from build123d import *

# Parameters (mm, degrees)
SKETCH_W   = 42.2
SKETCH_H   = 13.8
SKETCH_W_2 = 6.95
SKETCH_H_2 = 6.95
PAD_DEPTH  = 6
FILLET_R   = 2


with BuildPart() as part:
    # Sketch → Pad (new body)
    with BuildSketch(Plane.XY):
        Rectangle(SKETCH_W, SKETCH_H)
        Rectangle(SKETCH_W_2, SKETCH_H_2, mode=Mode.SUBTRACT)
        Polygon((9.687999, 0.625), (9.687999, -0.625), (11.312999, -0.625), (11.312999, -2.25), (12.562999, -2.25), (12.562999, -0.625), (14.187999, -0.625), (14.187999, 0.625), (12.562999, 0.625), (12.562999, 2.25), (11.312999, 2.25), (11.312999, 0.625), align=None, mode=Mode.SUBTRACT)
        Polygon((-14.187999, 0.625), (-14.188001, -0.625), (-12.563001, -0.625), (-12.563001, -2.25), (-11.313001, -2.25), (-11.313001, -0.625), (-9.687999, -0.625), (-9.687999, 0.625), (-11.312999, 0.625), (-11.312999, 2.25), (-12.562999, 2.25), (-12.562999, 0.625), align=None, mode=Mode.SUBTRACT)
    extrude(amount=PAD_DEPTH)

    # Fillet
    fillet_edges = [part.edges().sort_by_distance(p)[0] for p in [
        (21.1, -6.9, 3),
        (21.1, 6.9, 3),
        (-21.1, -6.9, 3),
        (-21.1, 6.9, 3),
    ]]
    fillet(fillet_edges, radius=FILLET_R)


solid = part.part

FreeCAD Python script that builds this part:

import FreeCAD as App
import Part
import Sketcher
Q = App.Units.Quantity


def edges_at(feature, points):
    """Names of the edges that pass closest to the given points."""
    edges = feature.Shape.Edges
    near = lambda p: min(range(len(edges)), key=lambda i: edges[i].distToShape(Part.Vertex(*p))[0])
    return sorted({f"Edge{near(p) + 1}" for p in points})


def add_polygon(sketch, points):
    """Adds a closed chain of lines whose ends are joined by coincident constraints."""
    first, n = sketch.GeometryCount, len(points)
    for a, b in zip(points, points[1:] + points[:1]):
        sketch.addGeometry(Part.LineSegment(App.Vector(*a, 0), App.Vector(*b, 0)), False)
    for i in range(n):
        sketch.addConstraint(Sketcher.Constraint("Coincident", first + i, 2, first + (i + 1) % n, 1))

doc = App.newDocument("Part")
body = doc.addObject("PartDesign::Body", "Body")

# Sketch on XY plane
sketch1 = body.newObject("Sketcher::SketchObject", "Sketch")
sketch1.AttachmentSupport = (doc.getObject("XY_Plane"), [""])
sketch1.MapMode = "FlatFace"
add_polygon(sketch1, [(-21.1, 6.9), (-21.1, -6.9), (21.1, -6.9), (21.1, 6.9)])  # lines 0-3
add_polygon(sketch1, [(-14.2, -0.6), (-14.2, 0.6), (-12.6, 0.6), (-12.6, 2.2), (-11.3, 2.2), (-11.3, 0.6), (-9.7, 0.6), (-9.7, -0.6), (-11.3, -0.6), (-11.3, -2.2), (-12.6, -2.2), (-12.6, -0.6)])  # lines 4-15
add_polygon(sketch1, [(3.5, -3.5), (-3.5, -3.5), (-3.5, 3.5), (3.5, 3.5)])  # lines 16-19
add_polygon(sketch1, [(9.7, -0.6), (9.7, 0.6), (11.3, 0.6), (11.3, 2.2), (12.6, 2.2), (12.6, 0.6), (14.2, 0.6), (14.2, -0.6), (12.6, -0.6), (12.6, -2.2), (11.3, -2.2), (11.3, -0.6)])  # lines 20-31
sketch1.addConstraint(Sketcher.Constraint("Vertical", 0))
sketch1.addConstraint(Sketcher.Constraint("Horizontal", 1))
sketch1.addConstraint(Sketcher.Constraint("Vertical", 2))
sketch1.addConstraint(Sketcher.Constraint("Horizontal", 3))
sketch1.addConstraint(Sketcher.Constraint("Horizontal", 5))
sketch1.addConstraint(Sketcher.Constraint("Vertical", 6))
sketch1.addConstraint(Sketcher.Constraint("Horizontal", 7))
sketch1.addConstraint(Sketcher.Constraint("Vertical", 8))
sketch1.addConstraint(Sketcher.Constraint("Horizontal", 9))
sketch1.addConstraint(Sketcher.Constraint("Vertical", 10))
sketch1.addConstraint(Sketcher.Constraint("Horizontal", 11))
sketch1.addConstraint(Sketcher.Constraint("Vertical", 12))
sketch1.addConstraint(Sketcher.Constraint("Horizontal", 13))
sketch1.addConstraint(Sketcher.Constraint("Vertical", 14))
sketch1.addConstraint(Sketcher.Constraint("Horizontal", 15))
sketch1.addConstraint(Sketcher.Constraint("Horizontal", 16))
sketch1.addConstraint(Sketcher.Constraint("Vertical", 17))
sketch1.addConstraint(Sketcher.Constraint("Horizontal", 18))
sketch1.addConstraint(Sketcher.Constraint("Vertical", 19))
sketch1.addConstraint(Sketcher.Constraint("Vertical", 20))
sketch1.addConstraint(Sketcher.Constraint("Horizontal", 21))
sketch1.addConstraint(Sketcher.Constraint("Vertical", 22))
sketch1.addConstraint(Sketcher.Constraint("Horizontal", 23))
sketch1.addConstraint(Sketcher.Constraint("Vertical", 24))
sketch1.addConstraint(Sketcher.Constraint("Horizontal", 25))
sketch1.addConstraint(Sketcher.Constraint("Vertical", 26))
sketch1.addConstraint(Sketcher.Constraint("Horizontal", 27))
sketch1.addConstraint(Sketcher.Constraint("Vertical", 28))
sketch1.addConstraint(Sketcher.Constraint("Horizontal", 29))
sketch1.addConstraint(Sketcher.Constraint("Vertical", 30))
sketch1.addConstraint(Sketcher.Constraint("Horizontal", 31))
sketch1.addConstraint(Sketcher.Constraint("Symmetric", 0, 2, 2, 2, -1, 1))
sketch1.addConstraint(Sketcher.Constraint("Symmetric", 16, 2, 18, 2, -1, 1))
sketch1.addConstraint(Sketcher.Constraint("Symmetric", 10, 2, 20, 2, -1, 1))
sketch1.addConstraint(Sketcher.Constraint("Symmetric", 12, 2, 22, 2, -1, 1))
sketch1.addConstraint(Sketcher.Constraint("Symmetric", 14, 2, 24, 2, -1, 1))
sketch1.addConstraint(Sketcher.Constraint("Symmetric", 4, 2, 26, 2, -1, 1))
sketch1.addConstraint(Sketcher.Constraint("Symmetric", 6, 2, 28, 2, -1, 1))
sketch1.addConstraint(Sketcher.Constraint("Symmetric", 8, 2, 30, 2, -1, 1))
sketch1.addConstraint(Sketcher.Constraint("Symmetric", 8, 2, 21, 2, -2))
sketch1.addConstraint(Sketcher.Constraint("Symmetric", 6, 2, 23, 2, -2))
sketch1.addConstraint(Sketcher.Constraint("Symmetric", 15, 2, 26, 2, -2))
sketch1.addConstraint(Sketcher.Constraint("Horizontal", 5, 2, 8, 2))
sketch1.addConstraint(Sketcher.Constraint("Equal", 5, 9))
sketch1.addConstraint(Sketcher.Constraint("Equal", 31, 6))
sketch1.addConstraint(Sketcher.Constraint("Equal", 29, 10))
sketch1.addConstraint(Sketcher.Constraint("Equal", 18, 17))
sketch1.addConstraint(Sketcher.Constraint("DistanceX", 1, 1, 1, 2, Q("42.2 mm")))
sketch1.addConstraint(Sketcher.Constraint("DistanceY", 0, 2, 0, 1, Q("13.8 mm")))
sketch1.addConstraint(Sketcher.Constraint("DistanceX", 7, 1, 7, 2, Q("1.25 mm")))
sketch1.addConstraint(Sketcher.Constraint("DistanceX", 16, 2, 16, 1, Q("6.95 mm")))
sketch1.addConstraint(Sketcher.Constraint("DistanceX", 4, 2, 9, 2, Q("4.5 mm")))
sketch1.addConstraint(Sketcher.Constraint("DistanceX", 4, 2, -1, 1, Q("14.187999 mm")))
pad1 = body.newObject("PartDesign::Pad", "Pad")
pad1.Profile = sketch1
pad1.Length = 6
doc.recompute()

fillet = body.newObject("PartDesign::Fillet", "Fillet")
fillet.Base = (pad1, edges_at(pad1, [
    (21.1, -6.9, 3),
    (21.1, 6.9, 3),
    (-21.1, -6.9, 3),
    (-21.1, 6.9, 3),
]))
fillet.Radius = 2

doc.recompute()
